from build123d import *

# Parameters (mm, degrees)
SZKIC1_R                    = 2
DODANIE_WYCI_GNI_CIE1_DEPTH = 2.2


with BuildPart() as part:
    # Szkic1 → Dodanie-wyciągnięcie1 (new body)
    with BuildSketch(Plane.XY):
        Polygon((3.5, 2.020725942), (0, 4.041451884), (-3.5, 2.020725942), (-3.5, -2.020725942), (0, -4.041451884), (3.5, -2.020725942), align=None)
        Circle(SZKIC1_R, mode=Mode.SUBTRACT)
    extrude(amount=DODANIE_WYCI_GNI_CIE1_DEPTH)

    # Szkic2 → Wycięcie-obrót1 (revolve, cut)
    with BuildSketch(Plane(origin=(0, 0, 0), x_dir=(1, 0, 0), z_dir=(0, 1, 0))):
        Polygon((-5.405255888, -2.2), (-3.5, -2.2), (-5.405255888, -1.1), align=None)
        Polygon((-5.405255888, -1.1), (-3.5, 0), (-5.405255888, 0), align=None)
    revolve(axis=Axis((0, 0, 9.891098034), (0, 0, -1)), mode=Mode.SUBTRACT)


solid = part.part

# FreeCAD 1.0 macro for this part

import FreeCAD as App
import Part
import Sketcher
Q = App.Units.Quantity

doc = App.newDocument("Part")
body = doc.addObject("PartDesign::Body", "Body")

sketch1 = doc.addObject("Sketcher::SketchObject", "Sketch")
body.addObject(sketch1)
sketch1.AttachmentSupport = (doc.XY_Plane, [""])
sketch1.MapMode = "FlatFace"
sketch1.addGeometry(Part.LineSegment(App.Vector(3.5, 2, 0), App.Vector(0, 4, 0)), False)
sketch1.addGeometry(Part.LineSegment(App.Vector(0, 4, 0), App.Vector(-3.5, 2, 0)), False)
sketch1.addGeometry(Part.LineSegment(App.Vector(-3.5, 2, 0), App.Vector(-3.5, -2, 0)), False)
sketch1.addGeometry(Part.LineSegment(App.Vector(-3.5, -2, 0), App.Vector(0, -4, 0)), False)
sketch1.addGeometry(Part.LineSegment(App.Vector(0, -4, 0), App.Vector(3.5, -2, 0)), False)
sketch1.addGeometry(Part.LineSegment(App.Vector(3.5, -2, 0), App.Vector(3.5, 2, 0)), False)
sketch1.addGeometry(Part.Circle(App.Vector(0, 0, 0), App.Vector(0, 0, 1), 2), False)
sketch1.addConstraint(Sketcher.Constraint("Coincident", 0, 2, 1, 1))
sketch1.addConstraint(Sketcher.Constraint("Coincident", 1, 2, 2, 1))
sketch1.addConstraint(Sketcher.Constraint("Coincident", 2, 2, 3, 1))
sketch1.addConstraint(Sketcher.Constraint("Coincident", 3, 2, 4, 1))
sketch1.addConstraint(Sketcher.Constraint("Coincident", 4, 2, 5, 1))
sketch1.addConstraint(Sketcher.Constraint("Coincident", 5, 2, 0, 1))
sketch1.addConstraint(Sketcher.Constraint("Vertical", 2))
sketch1.addConstraint(Sketcher.Constraint("Vertical", 5))
sketch1.addConstraint(Sketcher.Constraint("Coincident", 6, 3, -1, 1))
sketch1.addConstraint(Sketcher.Constraint("Symmetric", 0, 2, 3, 2, -1, 1))
sketch1.addConstraint(Sketcher.Constraint("Symmetric", 1, 2, 4, 2, -1, 1))
sketch1.addConstraint(Sketcher.Constraint("PointOnObject", 0, 2, -2))
sketch1.addConstraint(Sketcher.Constraint("Parallel", 0, 3))
sketch1.addConstraint(Sketcher.Constraint("Horizontal", 2, 2, 4, 2))
sketch1.addConstraint(Sketcher.Constraint("Diameter", 6, Q("4 mm")))
sketch1.addConstraint(Sketcher.Constraint("Angle", 0, Q("150 deg")))
sketch1.addConstraint(Sketcher.Constraint("DistanceX", 2, 2, 4, 2, Q("7 mm")))
sketch1.addConstraint(Sketcher.Constraint("DistanceY", 2, 2, 2, 1, Q("4.041452 mm")))
pad1 = doc.addObject("PartDesign::Pad", "Pad")
body.addObject(pad1)
pad1.Profile = sketch1
pad1.Length = 2.2

sketch2 = doc.addObject("Sketcher::SketchObject", "Sketch001")
body.addObject(sketch2)
sketch2.AttachmentSupport = (doc.XZ_Plane, [""])
sketch2.MapMode = "FlatFace"
sketch2.addGeometry(Part.LineSegment(App.Vector(-5.4, 2.2, 0), App.Vector(-3.5, 2.2, 0)), False)
sketch2.addGeometry(Part.LineSegment(App.Vector(-3.5, 2.2, 0), App.Vector(-5.4, 1.1, 0)), False)
sketch2.addGeometry(Part.LineSegment(App.Vector(-5.4, 1.1, 0), App.Vector(-5.4, 2.2, 0)), False)
sketch2.addGeometry(Part.LineSegment(App.Vector(-5.4, 1.1, 0), App.Vector(-3.5, 0, 0)), False)
sketch2.addGeometry(Part.LineSegment(App.Vector(-3.5, 0, 0), App.Vector(-5.4, 0, 0)), False)
sketch2.addGeometry(Part.LineSegment(App.Vector(-5.4, 0, 0), App.Vector(-5.4, 1.1, 0)), False)
sketch2.addConstraint(Sketcher.Constraint("Coincident", 0, 2, 1, 1))
sketch2.addConstraint(Sketcher.Constraint("Coincident", 1, 2, 2, 1))
sketch2.addConstraint(Sketcher.Constraint("Coincident", 2, 2, 0, 1))
sketch2.addConstraint(Sketcher.Constraint("Coincident", 3, 2, 4, 1))
sketch2.addConstraint(Sketcher.Constraint("Coincident", 4, 2, 5, 1))
sketch2.addConstraint(Sketcher.Constraint("Coincident", 5, 2, 3, 1))
sketch2.addConstraint(Sketcher.Constraint("Horizontal", 0))
sketch2.addConstraint(Sketcher.Constraint("Vertical", 2))
sketch2.addConstraint(Sketcher.Constraint("Horizontal", 4))
sketch2.addConstraint(Sketcher.Constraint("Vertical", 5))
sketch2.addConstraint(Sketcher.Constraint("Coincident", 5, 2, 1, 2))
sketch2.addConstraint(Sketcher.Constraint("PointOnObject", 3, 2, -1))
sketch2.addConstraint(Sketcher.Constraint("Vertical", 0, 2, 3, 2))
sketch2.addConstraint(Sketcher.Constraint("Equal", 2, 5))
sketch2.addConstraint(Sketcher.Constraint("Angle", 1, Q("-150 deg")))
sketch2.addConstraint(Sketcher.Constraint("DistanceY", 2, 1, 2, 2, Q("1.1 mm")))
sketch2.addConstraint(Sketcher.Constraint("DistanceX", 0, 2, -1, 1, Q("3.5 mm")))
groove = doc.addObject("PartDesign::Groove", "Groove")
body.addObject(groove)
groove.Profile = sketch2
groove.ReferenceAxis = (sketch2, ["V_Axis"])
groove.Angle = 360

doc.recompute()
